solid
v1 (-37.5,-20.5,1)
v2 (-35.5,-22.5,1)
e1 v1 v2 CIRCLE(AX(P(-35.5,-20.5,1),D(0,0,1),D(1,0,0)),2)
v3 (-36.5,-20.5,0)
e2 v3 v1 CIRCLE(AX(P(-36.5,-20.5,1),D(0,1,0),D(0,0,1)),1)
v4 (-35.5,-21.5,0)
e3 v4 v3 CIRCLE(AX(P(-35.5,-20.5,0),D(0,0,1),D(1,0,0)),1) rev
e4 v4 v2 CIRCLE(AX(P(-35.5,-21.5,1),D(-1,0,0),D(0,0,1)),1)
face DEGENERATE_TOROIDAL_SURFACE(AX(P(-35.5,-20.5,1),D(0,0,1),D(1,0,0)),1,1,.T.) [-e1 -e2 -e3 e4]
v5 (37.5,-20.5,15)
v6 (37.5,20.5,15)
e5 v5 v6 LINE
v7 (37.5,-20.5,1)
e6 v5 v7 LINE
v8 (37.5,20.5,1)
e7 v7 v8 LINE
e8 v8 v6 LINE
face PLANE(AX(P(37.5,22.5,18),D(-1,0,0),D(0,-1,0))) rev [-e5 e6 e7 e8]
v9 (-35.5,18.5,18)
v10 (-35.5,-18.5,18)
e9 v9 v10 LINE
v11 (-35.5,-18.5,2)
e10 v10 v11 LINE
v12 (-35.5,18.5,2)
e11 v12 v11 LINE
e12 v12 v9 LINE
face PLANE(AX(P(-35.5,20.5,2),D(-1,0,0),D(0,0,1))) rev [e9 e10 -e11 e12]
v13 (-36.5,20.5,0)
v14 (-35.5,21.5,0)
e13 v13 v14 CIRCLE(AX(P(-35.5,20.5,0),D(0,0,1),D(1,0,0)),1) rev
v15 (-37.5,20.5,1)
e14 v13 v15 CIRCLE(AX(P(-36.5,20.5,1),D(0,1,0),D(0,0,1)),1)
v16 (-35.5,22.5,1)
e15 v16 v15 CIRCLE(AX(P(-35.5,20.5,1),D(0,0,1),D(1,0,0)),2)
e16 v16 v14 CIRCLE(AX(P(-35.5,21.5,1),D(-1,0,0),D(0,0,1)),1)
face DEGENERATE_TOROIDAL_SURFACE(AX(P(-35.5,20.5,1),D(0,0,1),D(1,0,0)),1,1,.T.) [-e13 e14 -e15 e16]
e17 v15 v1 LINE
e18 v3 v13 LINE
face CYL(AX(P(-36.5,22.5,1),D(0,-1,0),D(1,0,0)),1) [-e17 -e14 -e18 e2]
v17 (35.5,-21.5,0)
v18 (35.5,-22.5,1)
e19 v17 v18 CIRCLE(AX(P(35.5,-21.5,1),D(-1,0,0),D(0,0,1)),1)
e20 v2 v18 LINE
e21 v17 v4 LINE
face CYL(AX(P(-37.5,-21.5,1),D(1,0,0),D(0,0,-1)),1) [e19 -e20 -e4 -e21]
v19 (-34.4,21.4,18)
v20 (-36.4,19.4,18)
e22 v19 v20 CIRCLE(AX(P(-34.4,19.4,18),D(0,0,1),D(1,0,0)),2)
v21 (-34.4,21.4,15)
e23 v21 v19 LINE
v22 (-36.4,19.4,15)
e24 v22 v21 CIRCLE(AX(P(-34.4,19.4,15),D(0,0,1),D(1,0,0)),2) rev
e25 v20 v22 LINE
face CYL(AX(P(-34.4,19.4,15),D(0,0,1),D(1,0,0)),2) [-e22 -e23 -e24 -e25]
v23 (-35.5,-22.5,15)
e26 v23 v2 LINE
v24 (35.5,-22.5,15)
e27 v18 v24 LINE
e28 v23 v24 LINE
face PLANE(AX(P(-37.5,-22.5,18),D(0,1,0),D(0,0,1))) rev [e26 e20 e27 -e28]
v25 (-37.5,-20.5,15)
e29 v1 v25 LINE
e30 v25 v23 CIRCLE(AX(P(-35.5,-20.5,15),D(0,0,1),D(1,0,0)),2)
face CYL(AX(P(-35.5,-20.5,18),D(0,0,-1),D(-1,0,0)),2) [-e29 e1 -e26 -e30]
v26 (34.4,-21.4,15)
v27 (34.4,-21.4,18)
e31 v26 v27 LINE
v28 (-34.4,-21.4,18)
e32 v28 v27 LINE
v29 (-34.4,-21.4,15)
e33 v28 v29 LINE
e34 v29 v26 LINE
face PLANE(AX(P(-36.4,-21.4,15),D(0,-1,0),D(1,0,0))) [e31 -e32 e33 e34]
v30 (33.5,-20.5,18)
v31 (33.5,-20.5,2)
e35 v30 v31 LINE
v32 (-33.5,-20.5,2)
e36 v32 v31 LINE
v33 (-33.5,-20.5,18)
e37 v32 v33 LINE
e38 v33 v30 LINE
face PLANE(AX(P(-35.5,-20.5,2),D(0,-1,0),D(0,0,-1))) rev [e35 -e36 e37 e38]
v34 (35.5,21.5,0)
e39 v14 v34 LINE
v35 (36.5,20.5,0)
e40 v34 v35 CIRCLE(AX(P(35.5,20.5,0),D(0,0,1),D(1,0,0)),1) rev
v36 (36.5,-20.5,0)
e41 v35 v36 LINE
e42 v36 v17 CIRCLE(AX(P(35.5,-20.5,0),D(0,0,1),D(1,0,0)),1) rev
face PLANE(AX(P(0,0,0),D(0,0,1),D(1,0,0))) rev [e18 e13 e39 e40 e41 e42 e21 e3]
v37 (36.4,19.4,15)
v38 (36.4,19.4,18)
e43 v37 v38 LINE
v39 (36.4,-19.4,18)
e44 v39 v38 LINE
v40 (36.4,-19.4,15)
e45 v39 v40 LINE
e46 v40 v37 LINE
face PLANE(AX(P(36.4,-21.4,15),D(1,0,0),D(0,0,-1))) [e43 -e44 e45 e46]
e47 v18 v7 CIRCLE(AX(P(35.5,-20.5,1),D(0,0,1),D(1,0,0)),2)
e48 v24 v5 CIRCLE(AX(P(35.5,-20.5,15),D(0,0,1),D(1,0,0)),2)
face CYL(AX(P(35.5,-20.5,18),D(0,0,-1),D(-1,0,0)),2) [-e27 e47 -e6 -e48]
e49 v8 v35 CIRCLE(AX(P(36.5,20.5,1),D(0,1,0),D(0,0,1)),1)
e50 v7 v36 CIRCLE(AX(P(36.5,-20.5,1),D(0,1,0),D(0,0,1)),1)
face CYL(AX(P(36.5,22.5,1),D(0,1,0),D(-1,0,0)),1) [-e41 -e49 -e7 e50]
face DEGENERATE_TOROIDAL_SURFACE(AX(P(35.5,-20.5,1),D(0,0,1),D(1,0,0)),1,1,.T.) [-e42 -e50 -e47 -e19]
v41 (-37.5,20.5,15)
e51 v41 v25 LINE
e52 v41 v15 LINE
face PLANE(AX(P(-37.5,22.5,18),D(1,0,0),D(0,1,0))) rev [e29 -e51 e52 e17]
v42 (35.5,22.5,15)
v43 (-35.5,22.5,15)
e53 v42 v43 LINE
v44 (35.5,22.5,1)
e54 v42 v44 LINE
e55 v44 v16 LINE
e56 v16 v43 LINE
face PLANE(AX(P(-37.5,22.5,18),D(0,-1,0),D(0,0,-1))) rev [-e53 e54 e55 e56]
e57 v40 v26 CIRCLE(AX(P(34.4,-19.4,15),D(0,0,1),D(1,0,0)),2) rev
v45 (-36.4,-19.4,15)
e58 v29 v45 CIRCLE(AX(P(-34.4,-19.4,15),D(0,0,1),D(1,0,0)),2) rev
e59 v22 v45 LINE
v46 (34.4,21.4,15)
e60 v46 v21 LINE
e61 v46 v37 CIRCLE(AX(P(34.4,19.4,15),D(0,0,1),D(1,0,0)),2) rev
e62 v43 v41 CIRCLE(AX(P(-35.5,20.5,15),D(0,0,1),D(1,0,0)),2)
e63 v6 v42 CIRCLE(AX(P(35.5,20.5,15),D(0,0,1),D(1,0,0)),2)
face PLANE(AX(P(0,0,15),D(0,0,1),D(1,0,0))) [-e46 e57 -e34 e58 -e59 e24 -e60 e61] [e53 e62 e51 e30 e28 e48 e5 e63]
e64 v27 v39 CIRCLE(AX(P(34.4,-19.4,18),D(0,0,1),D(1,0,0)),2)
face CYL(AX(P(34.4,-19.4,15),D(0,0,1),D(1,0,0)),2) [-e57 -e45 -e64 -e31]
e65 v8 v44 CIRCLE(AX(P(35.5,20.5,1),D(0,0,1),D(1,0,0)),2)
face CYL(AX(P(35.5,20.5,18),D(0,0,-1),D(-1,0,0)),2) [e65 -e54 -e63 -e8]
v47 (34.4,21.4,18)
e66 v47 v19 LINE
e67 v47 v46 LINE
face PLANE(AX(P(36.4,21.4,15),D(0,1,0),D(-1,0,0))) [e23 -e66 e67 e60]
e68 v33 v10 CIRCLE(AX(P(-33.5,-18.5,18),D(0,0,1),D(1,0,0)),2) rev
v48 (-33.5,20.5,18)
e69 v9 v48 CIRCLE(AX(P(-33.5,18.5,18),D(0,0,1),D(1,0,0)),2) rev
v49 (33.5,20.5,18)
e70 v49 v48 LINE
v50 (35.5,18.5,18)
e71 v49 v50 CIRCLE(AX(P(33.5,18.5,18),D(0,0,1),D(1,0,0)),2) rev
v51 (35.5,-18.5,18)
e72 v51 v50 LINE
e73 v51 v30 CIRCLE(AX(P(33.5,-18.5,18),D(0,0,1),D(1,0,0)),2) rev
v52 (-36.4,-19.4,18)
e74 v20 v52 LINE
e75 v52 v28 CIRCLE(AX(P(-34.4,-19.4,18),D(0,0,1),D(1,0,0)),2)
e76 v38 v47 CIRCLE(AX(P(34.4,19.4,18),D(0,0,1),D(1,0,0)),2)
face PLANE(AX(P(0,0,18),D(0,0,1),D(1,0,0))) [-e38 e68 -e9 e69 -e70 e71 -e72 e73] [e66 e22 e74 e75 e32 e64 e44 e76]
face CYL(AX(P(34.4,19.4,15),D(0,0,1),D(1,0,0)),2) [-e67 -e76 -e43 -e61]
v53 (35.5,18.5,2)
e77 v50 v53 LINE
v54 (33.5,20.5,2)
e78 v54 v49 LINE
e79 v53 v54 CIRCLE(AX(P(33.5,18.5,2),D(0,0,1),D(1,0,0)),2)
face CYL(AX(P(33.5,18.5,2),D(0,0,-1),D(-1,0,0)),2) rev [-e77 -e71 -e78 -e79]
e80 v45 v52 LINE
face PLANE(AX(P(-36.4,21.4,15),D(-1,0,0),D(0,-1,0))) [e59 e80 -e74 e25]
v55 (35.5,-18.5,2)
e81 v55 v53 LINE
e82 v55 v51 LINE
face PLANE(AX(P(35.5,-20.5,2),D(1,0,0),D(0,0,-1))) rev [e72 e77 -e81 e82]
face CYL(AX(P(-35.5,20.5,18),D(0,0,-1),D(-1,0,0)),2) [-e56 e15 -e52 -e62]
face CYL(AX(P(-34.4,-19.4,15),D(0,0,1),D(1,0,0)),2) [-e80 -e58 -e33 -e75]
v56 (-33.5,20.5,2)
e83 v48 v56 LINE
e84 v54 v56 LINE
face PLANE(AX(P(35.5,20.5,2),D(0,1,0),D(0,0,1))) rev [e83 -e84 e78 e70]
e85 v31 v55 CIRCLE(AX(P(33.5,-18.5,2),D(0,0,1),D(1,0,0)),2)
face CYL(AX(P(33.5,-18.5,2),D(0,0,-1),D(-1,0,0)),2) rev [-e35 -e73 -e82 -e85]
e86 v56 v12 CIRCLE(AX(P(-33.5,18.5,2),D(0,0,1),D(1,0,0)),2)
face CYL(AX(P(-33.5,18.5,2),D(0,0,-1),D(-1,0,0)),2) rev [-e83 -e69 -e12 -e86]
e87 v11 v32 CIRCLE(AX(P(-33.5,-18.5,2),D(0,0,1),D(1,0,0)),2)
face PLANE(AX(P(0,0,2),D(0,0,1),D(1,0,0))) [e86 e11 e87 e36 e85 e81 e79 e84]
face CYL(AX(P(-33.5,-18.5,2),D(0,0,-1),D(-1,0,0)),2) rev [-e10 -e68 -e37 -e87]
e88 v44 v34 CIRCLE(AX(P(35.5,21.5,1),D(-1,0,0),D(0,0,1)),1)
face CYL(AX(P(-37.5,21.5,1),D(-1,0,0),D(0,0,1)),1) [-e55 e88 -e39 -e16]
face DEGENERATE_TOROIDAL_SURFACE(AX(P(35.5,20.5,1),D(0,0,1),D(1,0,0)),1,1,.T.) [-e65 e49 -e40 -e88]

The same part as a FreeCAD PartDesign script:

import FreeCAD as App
import Part
import Sketcher


def edges_at(feature, points):
    """Names of the edges that pass closest to the given points."""
    edges = feature.Shape.Edges
    near = lambda p: min(range(len(edges)), key=lambda i: edges[i].distToShape(Part.Vertex(*p))[0])
    return sorted({f"Edge{near(p) + 1}" for p in points})

doc = App.newDocument("Part")
params = doc.addObject("Spreadsheet::Sheet", "Params")
for row, (alias, value) in enumerate([
    ("sketch1_width", "75 mm"),
    ("sketch1_height", "45 mm"),
    ("pad1_length", "18 mm"),
    ("sketch2_width", "71 mm"),
    ("sketch2_height", "41 mm"),
    ("pocket1_length", "16 mm"),
    ("sketch3_width", "75 mm"),
    ("sketch3_height", "45 mm"),
    ("sketch3_width2", "72.8 mm"),
    ("sketch3_height2", "42.8 mm"),
    ("pocket2_length", "3 mm"),
    ("fillet_radius", "2 mm"),
    ("fillet2_radius", "1 mm"),
], start=1):
    params.set(f"A{row}", alias)
    params.set(f"B{row}", "=" + value)
    params.setAlias(f"B{row}", alias)

body = doc.addObject("PartDesign::Body", "Body")

# Sketch on XY plane
sketch1 = body.newObject("Sketcher::SketchObject", "Sketch")
sketch1.AttachmentSupport = (doc.getObject("XY_Plane"), [""])
sketch1.MapMode = "FlatFace"
sketch1.addGeometry(Part.LineSegment(App.Vector(-37.5, 22.5, 0), App.Vector(-37.5, -22.5, 0)), False)
sketch1.addGeometry(Part.LineSegment(App.Vector(-37.5, -22.5, 0), App.Vector(37.5, -22.5, 0)), False)
sketch1.addGeometry(Part.LineSegment(App.Vector(37.5, -22.5, 0), App.Vector(37.5, 22.5, 0)), False)
sketch1.addGeometry(Part.LineSegment(App.Vector(37.5, 22.5, 0), App.Vector(-37.5, 22.5, 0)), False)
sketch1.addConstraint(Sketcher.Constraint("Coincident", 0, 2, 1, 1))
sketch1.addConstraint(Sketcher.Constraint("Coincident", 1, 2, 2, 1))
sketch1.addConstraint(Sketcher.Constraint("Coincident", 2, 2, 3, 1))
sketch1.addConstraint(Sketcher.Constraint("Coincident", 3, 2, 0, 1))
sketch1.addConstraint(Sketcher.Constraint("Vertical", 0))
sketch1.addConstraint(Sketcher.Constraint("Horizontal", 1))
sketch1.addConstraint(Sketcher.Constraint("Vertical", 2))
sketch1.addConstraint(Sketcher.Constraint("Horizontal", 3))
sketch1.addConstraint(Sketcher.Constraint("Symmetric", 0, 2, 2, 2, -1, 1))
sketch1.addConstraint(Sketcher.Constraint("DistanceX", 1, 1, 1, 2, 75.0))
sketch1.addConstraint(Sketcher.Constraint("DistanceY", 0, 2, 0, 1, 45.0))
sketch1.setExpression("Constraints[9]", "Params.sketch1_width")
sketch1.setExpression("Constraints[10]", "Params.sketch1_height")
pad1 = body.newObject("PartDesign::Pad", "Pad")
pad1.Profile = sketch1
pad1.setExpression("Length", "Params.pad1_length")

# Sketch on XY plane
sketch2 = body.newObject("Sketcher::SketchObject", "Sketch001")
sketch2.AttachmentSupport = (doc.getObject("XY_Plane"), [""])
sketch2.MapMode = "FlatFace"
sketch2.AttachmentOffset = App.Placement(App.Vector(0, 0, 18), App.Rotation())
sketch2.addGeometry(Part.LineSegment(App.Vector(-35.5, 20.5, 0), App.Vector(-35.5, -20.5, 0)), False)
sketch2.addGeometry(Part.LineSegment(App.Vector(-35.5, -20.5, 0), App.Vector(35.5, -20.5, 0)), False)
sketch2.addGeometry(Part.LineSegment(App.Vector(35.5, -20.5, 0), App.Vector(35.5, 20.5, 0)), False)
sketch2.addGeometry(Part.LineSegment(App.Vector(35.5, 20.5, 0), App.Vector(-35.5, 20.5, 0)), False)
sketch2.addConstraint(Sketcher.Constraint("Coincident", 0, 2, 1, 1))
sketch2.addConstraint(Sketcher.Constraint("Coincident", 1, 2, 2, 1))
sketch2.addConstraint(Sketcher.Constraint("Coincident", 2, 2, 3, 1))
sketch2.addConstraint(Sketcher.Constraint("Coincident", 3, 2, 0, 1))
sketch2.addConstraint(Sketcher.Constraint("Vertical", 0))
sketch2.addConstraint(Sketcher.Constraint("Horizontal", 1))
sketch2.addConstraint(Sketcher.Constraint("Vertical", 2))
sketch2.addConstraint(Sketcher.Constraint("Horizontal", 3))
sketch2.addConstraint(Sketcher.Constraint("Symmetric", 0, 2, 2, 2, -1, 1))
sketch2.addConstraint(Sketcher.Constraint("DistanceX", 1, 1, 1, 2, 71.0))
sketch2.addConstraint(Sketcher.Constraint("DistanceY", 0, 2, 0, 1, 41.0))
sketch2.setExpression("Constraints[9]", "Params.sketch2_width")
sketch2.setExpression("Constraints[10]", "Params.sketch2_height")
pocket1 = body.newObject("PartDesign::Pocket", "Pocket")
pocket1.Profile = sketch2
pocket1.setExpression("Length", "Params.pocket1_length")

# Sketch on XY plane
sketch3 = body.newObject("Sketcher::SketchObject", "Sketch002")
sketch3.AttachmentSupport = (doc.getObject("XY_Plane"), [""])
sketch3.MapMode = "FlatFace"
sketch3.AttachmentOffset = App.Placement(App.Vector(0, 0, 18), App.Rotation())
sketch3.addGeometry(Part.LineSegment(App.Vector(-37.5, 22.5, 0), App.Vector(-37.5, -22.5, 0)), False)
sketch3.addGeometry(Part.LineSegment(App.Vector(-37.5, -22.5, 0), App.Vector(37.5, -22.5, 0)), False)
sketch3.addGeometry(Part.LineSegment(App.Vector(37.5, -22.5, 0), App.Vector(37.5, 22.5, 0)), False)
sketch3.addGeometry(Part.LineSegment(App.Vector(37.5, 22.5, 0), App.Vector(-37.5, 22.5, 0)), False)
sketch3.addGeometry(Part.LineSegment(App.Vector(36.4, -21.4, 0), App.Vector(-36.4, -21.4, 0)), False)
sketch3.addGeometry(Part.LineSegment(App.Vector(-36.4, -21.4, 0), App.Vector(-36.4, 21.4, 0)), False)
sketch3.addGeometry(Part.LineSegment(App.Vector(-36.4, 21.4, 0), App.Vector(36.4, 21.4, 0)), False)
sketch3.addGeometry(Part.LineSegment(App.Vector(36.4, 21.4, 0), App.Vector(36.4, -21.4, 0)), False)
sketch3.addConstraint(Sketcher.Constraint("Coincident", 0, 2, 1, 1))
sketch3.addConstraint(Sketcher.Constraint("Coincident", 1, 2, 2, 1))
sketch3.addConstraint(Sketcher.Constraint("Coincident", 2, 2, 3, 1))
sketch3.addConstraint(Sketcher.Constraint("Coincident", 3, 2, 0, 1))
sketch3.addConstraint(Sketcher.Constraint("Coincident", 4, 2, 5, 1))
sketch3.addConstraint(Sketcher.Constraint("Coincident", 5, 2, 6, 1))
sketch3.addConstraint(Sketcher.Constraint("Coincident", 6, 2, 7, 1))
sketch3.addConstraint(Sketcher.Constraint("Coincident", 7, 2, 4, 1))
sketch3.addConstraint(Sketcher.Constraint("Vertical", 0))
sketch3.addConstraint(Sketcher.Constraint("Horizontal", 1))
sketch3.addConstraint(Sketcher.Constraint("Vertical", 2))
sketch3.addConstraint(Sketcher.Constraint("Horizontal", 3))
sketch3.addConstraint(Sketcher.Constraint("Horizontal", 4))
sketch3.addConstraint(Sketcher.Constraint("Vertical", 5))
sketch3.addConstraint(Sketcher.Constraint("Horizontal", 6))
sketch3.addConstraint(Sketcher.Constraint("Vertical", 7))
sketch3.addConstraint(Sketcher.Constraint("Symmetric", 0, 2, 2, 2, -1, 1))
sketch3.addConstraint(Sketcher.Constraint("Symmetric", 4, 2, 6, 2, -1, 1))
sketch3.addConstraint(Sketcher.Constraint("DistanceX", 1, 1, 1, 2, 75.0))
sketch3.addConstraint(Sketcher.Constraint("DistanceY", 0, 2, 0, 1, 45.0))
sketch3.addConstraint(Sketcher.Constraint("DistanceX", 4, 2, 4, 1, 72.8))
sketch3.addConstraint(Sketcher.Constraint("DistanceY", 5, 1, 5, 2, 42.8))
sketch3.setExpression("Constraints[18]", "Params.sketch3_width")
sketch3.setExpression("Constraints[19]", "Params.sketch3_height")
sketch3.setExpression("Constraints[20]", "Params.sketch3_width2")
sketch3.setExpression("Constraints[21]", "Params.sketch3_height2")
pocket2 = body.newObject("PartDesign::Pocket", "Pocket001")
pocket2.Profile = sketch3
pocket2.setExpression("Length", "Params.pocket2_length")
doc.recompute()

fillet = body.newObject("PartDesign::Fillet", "Fillet")
fillet.Base = (pocket2, edges_at(pocket2, [
    (-35.5, 20.5, 10),
    (35.5, 20.5, 10),
    (35.5, -20.5, 10),
    (-35.5, -20.5, 10),
    (-37.5, 22.5, 7.5),
    (37.5, 22.5, 7.5),
    (37.5, -22.5, 7.5),
    (-37.5, -22.5, 7.5),
    (-36.4, 21.4, 16.5),
    (36.4, 21.4, 16.5),
    (36.4, -21.4, 16.5),
    (-36.4, -21.4, 16.5),
]))
fillet.setExpression("Radius", "Params.fillet_radius")
doc.recompute()

fillet2 = body.newObject("PartDesign::Fillet", "Fillet001")
fillet2.Base = (fillet, edges_at(fillet, [
    (0, 22.5, 0),
    (-37.5, 0, 0),
    (37.5, 0, 0),
    (0, -22.5, 0),
    (-36.914, 21.914, 0),
    (-36.914, -21.914, 0),
    (36.914, -21.914, 0),
    (36.914, 21.914, 0),
]))
fillet2.setExpression("Radius", "Params.fillet2_radius")

doc.recompute()
